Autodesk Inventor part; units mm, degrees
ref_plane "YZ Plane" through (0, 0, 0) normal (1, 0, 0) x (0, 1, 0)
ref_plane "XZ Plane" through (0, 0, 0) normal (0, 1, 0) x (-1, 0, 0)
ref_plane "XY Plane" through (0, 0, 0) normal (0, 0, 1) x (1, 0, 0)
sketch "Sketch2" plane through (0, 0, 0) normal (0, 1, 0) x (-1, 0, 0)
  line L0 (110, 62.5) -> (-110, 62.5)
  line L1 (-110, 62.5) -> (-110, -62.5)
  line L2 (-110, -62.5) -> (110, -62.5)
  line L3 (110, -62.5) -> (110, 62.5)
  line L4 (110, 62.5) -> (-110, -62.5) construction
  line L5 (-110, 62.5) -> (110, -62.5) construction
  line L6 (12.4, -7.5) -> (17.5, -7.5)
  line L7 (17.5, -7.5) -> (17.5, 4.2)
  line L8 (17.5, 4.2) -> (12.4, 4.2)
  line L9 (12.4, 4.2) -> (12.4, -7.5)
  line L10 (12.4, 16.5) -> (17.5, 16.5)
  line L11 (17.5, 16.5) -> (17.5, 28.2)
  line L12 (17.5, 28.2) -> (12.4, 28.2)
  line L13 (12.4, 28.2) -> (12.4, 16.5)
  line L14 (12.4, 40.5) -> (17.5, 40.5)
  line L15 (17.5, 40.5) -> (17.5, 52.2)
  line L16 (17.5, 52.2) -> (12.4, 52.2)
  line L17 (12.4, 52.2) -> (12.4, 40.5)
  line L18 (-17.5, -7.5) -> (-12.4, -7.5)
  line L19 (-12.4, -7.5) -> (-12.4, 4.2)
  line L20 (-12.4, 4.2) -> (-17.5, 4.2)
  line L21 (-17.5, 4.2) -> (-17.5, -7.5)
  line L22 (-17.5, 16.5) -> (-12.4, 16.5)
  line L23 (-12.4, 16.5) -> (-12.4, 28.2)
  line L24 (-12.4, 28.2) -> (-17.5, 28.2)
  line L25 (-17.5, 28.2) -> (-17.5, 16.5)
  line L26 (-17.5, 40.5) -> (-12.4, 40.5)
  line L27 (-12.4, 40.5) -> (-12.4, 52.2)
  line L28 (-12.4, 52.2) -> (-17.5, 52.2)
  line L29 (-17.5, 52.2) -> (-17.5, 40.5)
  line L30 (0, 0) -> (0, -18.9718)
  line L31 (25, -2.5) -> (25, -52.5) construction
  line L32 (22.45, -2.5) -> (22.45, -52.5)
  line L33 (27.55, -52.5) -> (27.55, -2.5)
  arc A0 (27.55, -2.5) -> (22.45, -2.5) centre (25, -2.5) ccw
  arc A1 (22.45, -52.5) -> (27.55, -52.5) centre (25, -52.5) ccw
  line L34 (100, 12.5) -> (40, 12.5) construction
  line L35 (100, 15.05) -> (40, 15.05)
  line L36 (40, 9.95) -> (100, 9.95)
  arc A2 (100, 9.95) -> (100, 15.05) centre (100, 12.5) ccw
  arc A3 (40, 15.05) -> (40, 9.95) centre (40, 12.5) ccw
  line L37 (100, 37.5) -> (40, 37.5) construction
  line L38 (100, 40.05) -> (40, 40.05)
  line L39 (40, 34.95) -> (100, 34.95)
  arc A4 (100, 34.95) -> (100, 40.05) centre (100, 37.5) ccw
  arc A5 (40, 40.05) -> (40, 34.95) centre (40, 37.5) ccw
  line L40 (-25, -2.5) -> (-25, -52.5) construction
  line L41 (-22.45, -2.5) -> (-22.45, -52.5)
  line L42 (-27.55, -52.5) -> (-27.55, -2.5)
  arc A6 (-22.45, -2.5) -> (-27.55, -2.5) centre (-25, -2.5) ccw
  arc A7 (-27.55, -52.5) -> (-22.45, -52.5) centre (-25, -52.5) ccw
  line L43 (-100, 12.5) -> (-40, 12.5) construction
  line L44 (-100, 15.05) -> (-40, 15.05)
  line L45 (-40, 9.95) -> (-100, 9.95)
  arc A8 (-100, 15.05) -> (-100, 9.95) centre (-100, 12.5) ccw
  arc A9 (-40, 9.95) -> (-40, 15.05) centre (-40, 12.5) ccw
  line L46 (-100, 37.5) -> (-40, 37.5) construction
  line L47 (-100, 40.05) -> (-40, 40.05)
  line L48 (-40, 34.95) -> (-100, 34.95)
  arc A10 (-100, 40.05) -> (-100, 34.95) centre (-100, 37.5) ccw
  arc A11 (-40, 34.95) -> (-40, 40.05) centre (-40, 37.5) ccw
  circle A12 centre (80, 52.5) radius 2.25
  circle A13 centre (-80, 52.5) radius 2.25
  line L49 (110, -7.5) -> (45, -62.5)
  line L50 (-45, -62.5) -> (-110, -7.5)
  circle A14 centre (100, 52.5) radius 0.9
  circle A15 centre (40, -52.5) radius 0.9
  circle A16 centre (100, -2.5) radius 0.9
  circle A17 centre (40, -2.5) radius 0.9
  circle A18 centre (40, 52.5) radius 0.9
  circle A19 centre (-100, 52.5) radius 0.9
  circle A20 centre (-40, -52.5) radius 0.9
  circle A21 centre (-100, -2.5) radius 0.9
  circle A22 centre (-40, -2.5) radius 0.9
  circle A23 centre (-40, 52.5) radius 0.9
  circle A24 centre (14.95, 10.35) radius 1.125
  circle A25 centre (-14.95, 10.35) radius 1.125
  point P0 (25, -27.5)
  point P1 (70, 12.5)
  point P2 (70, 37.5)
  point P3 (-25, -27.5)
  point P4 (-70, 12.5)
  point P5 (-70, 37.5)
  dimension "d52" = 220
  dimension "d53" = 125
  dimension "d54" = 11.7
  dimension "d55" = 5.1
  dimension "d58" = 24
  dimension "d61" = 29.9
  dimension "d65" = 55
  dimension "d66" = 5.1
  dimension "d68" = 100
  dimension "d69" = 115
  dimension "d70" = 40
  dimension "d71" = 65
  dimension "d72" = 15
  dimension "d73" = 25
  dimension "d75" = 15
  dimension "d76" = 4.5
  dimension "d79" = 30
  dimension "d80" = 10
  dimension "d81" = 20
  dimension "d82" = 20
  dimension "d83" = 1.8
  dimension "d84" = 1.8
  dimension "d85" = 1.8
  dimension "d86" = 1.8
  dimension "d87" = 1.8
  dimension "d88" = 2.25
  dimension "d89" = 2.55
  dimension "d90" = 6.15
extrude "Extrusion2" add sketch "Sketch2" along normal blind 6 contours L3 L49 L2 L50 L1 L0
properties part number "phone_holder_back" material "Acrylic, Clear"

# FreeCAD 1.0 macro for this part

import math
import FreeCAD as App
import Part
import Sketcher
Q = App.Units.Quantity

doc = App.newDocument("Part")
body = doc.addObject("PartDesign::Body", "Body")

sketch1 = body.newObject("Sketcher::SketchObject", "Sketch")
sketch1.AttachmentSupport = (doc.getObject("XZ_Plane"), [""])
sketch1.MapMode = "FlatFace"
sketch1.addGeometry([
    Part.LineSegment(App.Vector(-110, -7.5, 0), App.Vector(-110, 62.5, 0)),
    Part.LineSegment(App.Vector(-110, 62.5, 0), App.Vector(110, 62.5, 0)),
    Part.LineSegment(App.Vector(110, 62.5, 0), App.Vector(110, -7.5, 0)),
    Part.LineSegment(App.Vector(110, -7.5, 0), App.Vector(45, -62.5, 0)),
    Part.LineSegment(App.Vector(45, -62.5, 0), App.Vector(-45, -62.5, 0)),
    Part.LineSegment(App.Vector(-45, -62.5, 0), App.Vector(-110, -7.5, 0)),
    Part.Circle(App.Vector(40, -52.5, 0), App.Vector(0, 0, 1), 0.9),
    Part.Circle(App.Vector(100, -2.5, 0), App.Vector(0, 0, 1), 0.9),
    Part.ArcOfCircle(Part.Circle(App.Vector(25, -2.5, 0), App.Vector(0, 0, 1), 2.6), math.radians(0), math.radians(180)),
    Part.LineSegment(App.Vector(22.4, -2.5, 0), App.Vector(22.4, -52.5, 0)),
    Part.ArcOfCircle(Part.Circle(App.Vector(25, -52.5, 0), App.Vector(0, 0, 1), 2.6), math.radians(180), math.radians(360)),
    Part.LineSegment(App.Vector(27.6, -52.5, 0), App.Vector(27.6, -2.5, 0)),
    Part.Circle(App.Vector(40, -2.5, 0), App.Vector(0, 0, 1), 0.9),
    Part.LineSegment(App.Vector(12.4, -7.5, 0), App.Vector(17.5, -7.5, 0)),
    Part.LineSegment(App.Vector(17.5, -7.5, 0), App.Vector(17.5, 4.2, 0)),
    Part.LineSegment(App.Vector(17.5, 4.2, 0), App.Vector(12.4, 4.2, 0)),
    Part.LineSegment(App.Vector(12.4, 4.2, 0), App.Vector(12.4, -7.5, 0)),
    Part.Circle(App.Vector(-40, -52.5, 0), App.Vector(0, 0, 1), 0.9),
    Part.LineSegment(App.Vector(-22.4, -52.5, 0), App.Vector(-22.4, -2.5, 0)),
    Part.ArcOfCircle(Part.Circle(App.Vector(-25, -2.5, 0), App.Vector(0, 0, 1), 2.6), math.radians(0), math.radians(180)),
    Part.LineSegment(App.Vector(-27.6, -2.5, 0), App.Vector(-27.6, -52.5, 0)),
    Part.ArcOfCircle(Part.Circle(App.Vector(-25, -52.5, 0), App.Vector(0, 0, 1), 2.6), math.radians(180), math.radians(360)),
    Part.LineSegment(App.Vector(-17.5, -7.5, 0), App.Vector(-12.4, -7.5, 0)),
    Part.LineSegment(App.Vector(-12.4, -7.5, 0), App.Vector(-12.4, 4.2, 0)),
    Part.LineSegment(App.Vector(-12.4, 4.2, 0), App.Vector(-17.5, 4.2, 0)),
    Part.LineSegment(App.Vector(-17.5, 4.2, 0), App.Vector(-17.5, -7.5, 0)),
    Part.Circle(App.Vector(-40, -2.5, 0), App.Vector(0, 0, 1), 0.9),
    Part.Circle(App.Vector(-100, -2.5, 0), App.Vector(0, 0, 1), 0.9),
    Part.ArcOfCircle(Part.Circle(App.Vector(100, 12.5, 0), App.Vector(0, 0, 1), 2.6), math.radians(-90), math.radians(90)),
    Part.LineSegment(App.Vector(100, 15.1, 0), App.Vector(40, 15.1, 0)),
    Part.ArcOfCircle(Part.Circle(App.Vector(40, 12.5, 0), App.Vector(0, 0, 1), 2.6), math.radians(90), math.radians(270)),
    Part.LineSegment(App.Vector(40, 9.9, 0), App.Vector(100, 9.9, 0)),
    Part.Circle(App.Vector(14.9, 10.3, 0), App.Vector(0, 0, 1), 1.1),
    Part.LineSegment(App.Vector(12.4, 16.5, 0), App.Vector(17.5, 16.5, 0)),
    Part.LineSegment(App.Vector(17.5, 16.5, 0), App.Vector(17.5, 28.2, 0)),
    Part.LineSegment(App.Vector(17.5, 28.2, 0), App.Vector(12.4, 28.2, 0)),
    Part.LineSegment(App.Vector(12.4, 28.2, 0), App.Vector(12.4, 16.5, 0)),
    Part.ArcOfCircle(Part.Circle(App.Vector(100, 37.5, 0), App.Vector(0, 0, 1), 2.5), math.radians(-90), math.radians(90)),
    Part.LineSegment(App.Vector(100, 40, 0), App.Vector(40, 40, 0)),
    Part.ArcOfCircle(Part.Circle(App.Vector(40, 37.5, 0), App.Vector(0, 0, 1), 2.5), math.radians(90), math.radians(270)),
    Part.LineSegment(App.Vector(40, 35, 0), App.Vector(100, 35, 0)),
    Part.Circle(App.Vector(100, 52.5, 0), App.Vector(0, 0, 1), 0.9),
    Part.Circle(App.Vector(80, 52.5, 0), App.Vector(0, 0, 1), 2.2),
    Part.LineSegment(App.Vector(12.4, 40.5, 0), App.Vector(17.5, 40.5, 0)),
    Part.LineSegment(App.Vector(17.5, 40.5, 0), App.Vector(17.5, 52.2, 0)),
    Part.LineSegment(App.Vector(17.5, 52.2, 0), App.Vector(12.4, 52.2, 0)),
    Part.LineSegment(App.Vector(12.4, 52.2, 0), App.Vector(12.4, 40.5, 0)),
    Part.Circle(App.Vector(40, 52.5, 0), App.Vector(0, 0, 1), 0.9),
    Part.Circle(App.Vector(-14.9, 10.3, 0), App.Vector(0, 0, 1), 1.1),
    Part.LineSegment(App.Vector(-17.5, 16.5, 0), App.Vector(-12.4, 16.5, 0)),
    Part.LineSegment(App.Vector(-12.4, 16.5, 0), App.Vector(-12.4, 28.2, 0)),
    Part.LineSegment(App.Vector(-12.4, 28.2, 0), App.Vector(-17.5, 28.2, 0)),
    Part.LineSegment(App.Vector(-17.5, 28.2, 0), App.Vector(-17.5, 16.5, 0)),
    Part.LineSegment(App.Vector(-40, 15.1, 0), App.Vector(-100, 15.1, 0)),
    Part.ArcOfCircle(Part.Circle(App.Vector(-100, 12.5, 0), App.Vector(0, 0, 1), 2.6), math.radians(90), math.radians(270)),
    Part.LineSegment(App.Vector(-100, 9.9, 0), App.Vector(-40, 9.9, 0)),
    Part.ArcOfCircle(Part.Circle(App.Vector(-40, 12.5, 0), App.Vector(0, 0, 1), 2.6), math.radians(-90), math.radians(90)),
    Part.LineSegment(App.Vector(-17.5, 40.5, 0), App.Vector(-12.4, 40.5, 0)),
    Part.LineSegment(App.Vector(-12.4, 40.5, 0), App.Vector(-12.4, 52.2, 0)),
    Part.LineSegment(App.Vector(-12.4, 52.2, 0), App.Vector(-17.5, 52.2, 0)),
    Part.LineSegment(App.Vector(-17.5, 52.2, 0), App.Vector(-17.5, 40.5, 0)),
    Part.Circle(App.Vector(-40, 52.5, 0), App.Vector(0, 0, 1), 0.9),
    Part.LineSegment(App.Vector(-40, 40, 0), App.Vector(-100, 40, 0)),
    Part.ArcOfCircle(Part.Circle(App.Vector(-100, 37.5, 0), App.Vector(0, 0, 1), 2.5), math.radians(90), math.radians(270)),
    Part.LineSegment(App.Vector(-100, 35, 0), App.Vector(-40, 35, 0)),
    Part.ArcOfCircle(Part.Circle(App.Vector(-40, 37.5, 0), App.Vector(0, 0, 1), 2.5), math.radians(-90), math.radians(90)),
    Part.Circle(App.Vector(-80, 52.5, 0), App.Vector(0, 0, 1), 2.2),
    Part.Circle(App.Vector(-100, 52.5, 0), App.Vector(0, 0, 1), 0.9),
], False)
sketch1.addConstraint([
    Sketcher.Constraint("Coincident", 0, 2, 1, 1),
    Sketcher.Constraint("Coincident", 1, 2, 2, 1),
    Sketcher.Constraint("Coincident", 2, 2, 3, 1),
    Sketcher.Constraint("Coincident", 3, 2, 4, 1),
    Sketcher.Constraint("Coincident", 4, 2, 5, 1),
    Sketcher.Constraint("Coincident", 5, 2, 0, 1),
    Sketcher.Constraint("Tangent", 8, 2, 9, 1),
    Sketcher.Constraint("Tangent", 9, 2, 10, 1),
    Sketcher.Constraint("Tangent", 10, 2, 11, 1),
    Sketcher.Constraint("Tangent", 11, 2, 8, 1),
    Sketcher.Constraint("Coincident", 13, 2, 14, 1),
    Sketcher.Constraint("Coincident", 14, 2, 15, 1),
    Sketcher.Constraint("Coincident", 15, 2, 16, 1),
    Sketcher.Constraint("Coincident", 16, 2, 13, 1),
    Sketcher.Constraint("Tangent", 18, 2, 19, 1),
    Sketcher.Constraint("Tangent", 19, 2, 20, 1),
    Sketcher.Constraint("Tangent", 20, 2, 21, 1),
    Sketcher.Constraint("Tangent", 21, 2, 18, 1),
    Sketcher.Constraint("Coincident", 22, 2, 23, 1),
    Sketcher.Constraint("Coincident", 23, 2, 24, 1),
    Sketcher.Constraint("Coincident", 24, 2, 25, 1),
    Sketcher.Constraint("Coincident", 25, 2, 22, 1),
    Sketcher.Constraint("Tangent", 28, 2, 29, 1),
    Sketcher.Constraint("Tangent", 29, 2, 30, 1),
    Sketcher.Constraint("Tangent", 30, 2, 31, 1),
    Sketcher.Constraint("Tangent", 31, 2, 28, 1),
    Sketcher.Constraint("Coincident", 33, 2, 34, 1),
    Sketcher.Constraint("Coincident", 34, 2, 35, 1),
    Sketcher.Constraint("Coincident", 35, 2, 36, 1),
    Sketcher.Constraint("Coincident", 36, 2, 33, 1),
    Sketcher.Constraint("Tangent", 37, 2, 38, 1),
    Sketcher.Constraint("Tangent", 38, 2, 39, 1),
    Sketcher.Constraint("Tangent", 39, 2, 40, 1),
    Sketcher.Constraint("Tangent", 40, 2, 37, 1),
    Sketcher.Constraint("Coincident", 43, 2, 44, 1),
    Sketcher.Constraint("Coincident", 44, 2, 45, 1),
    Sketcher.Constraint("Coincident", 45, 2, 46, 1),
    Sketcher.Constraint("Coincident", 46, 2, 43, 1),
    Sketcher.Constraint("Coincident", 49, 2, 50, 1),
    Sketcher.Constraint("Coincident", 50, 2, 51, 1),
    Sketcher.Constraint("Coincident", 51, 2, 52, 1),
    Sketcher.Constraint("Coincident", 52, 2, 49, 1),
    Sketcher.Constraint("Tangent", 53, 2, 54, 1),
    Sketcher.Constraint("Tangent", 54, 2, 55, 1),
    Sketcher.Constraint("Tangent", 55, 2, 56, 1),
    Sketcher.Constraint("Tangent", 56, 2, 53, 1),
    Sketcher.Constraint("Coincident", 57, 2, 58, 1),
    Sketcher.Constraint("Coincident", 58, 2, 59, 1),
    Sketcher.Constraint("Coincident", 59, 2, 60, 1),
    Sketcher.Constraint("Coincident", 60, 2, 57, 1),
    Sketcher.Constraint("Tangent", 62, 2, 63, 1),
    Sketcher.Constraint("Tangent", 63, 2, 64, 1),
    Sketcher.Constraint("Tangent", 64, 2, 65, 1),
    Sketcher.Constraint("Tangent", 65, 2, 62, 1),
    Sketcher.Constraint("Vertical", 0),
    Sketcher.Constraint("Horizontal", 1),
    Sketcher.Constraint("Vertical", 2),
    Sketcher.Constraint("Horizontal", 4),
    Sketcher.Constraint("Vertical", 9),
    Sketcher.Constraint("Vertical", 11),
    Sketcher.Constraint("Horizontal", 13),
    Sketcher.Constraint("Vertical", 14),
    Sketcher.Constraint("Horizontal", 15),
    Sketcher.Constraint("Vertical", 16),
    Sketcher.Constraint("Vertical", 18),
    Sketcher.Constraint("Vertical", 20),
    Sketcher.Constraint("Horizontal", 22),
    Sketcher.Constraint("Vertical", 23),
    Sketcher.Constraint("Horizontal", 24),
    Sketcher.Constraint("Vertical", 25),
    Sketcher.Constraint("Horizontal", 29),
    Sketcher.Constraint("Horizontal", 31),
    Sketcher.Constraint("Horizontal", 33),
    Sketcher.Constraint("Vertical", 34),
    Sketcher.Constraint("Horizontal", 35),
    Sketcher.Constraint("Vertical", 36),
    Sketcher.Constraint("Horizontal", 38),
    Sketcher.Constraint("Horizontal", 40),
    Sketcher.Constraint("Horizontal", 43),
    Sketcher.Constraint("Vertical", 44),
    Sketcher.Constraint("Horizontal", 45),
    Sketcher.Constraint("Vertical", 46),
    Sketcher.Constraint("Horizontal", 49),
    Sketcher.Constraint("Vertical", 50),
    Sketcher.Constraint("Horizontal", 51),
    Sketcher.Constraint("Vertical", 52),
    Sketcher.Constraint("Horizontal", 53),
    Sketcher.Constraint("Horizontal", 55),
    Sketcher.Constraint("Horizontal", 57),
    Sketcher.Constraint("Vertical", 58),
    Sketcher.Constraint("Horizontal", 59),
    Sketcher.Constraint("Vertical", 60),
    Sketcher.Constraint("Horizontal", 62),
    Sketcher.Constraint("Horizontal", 64),
    Sketcher.Constraint("Equal", 6, 7),
    Sketcher.Constraint("Equal", 7, 12),
    Sketcher.Constraint("Equal", 12, 17),
    Sketcher.Constraint("Equal", 10, 19),
    Sketcher.Constraint("Equal", 17, 26),
    Sketcher.Constraint("Equal", 26, 27),
    Sketcher.Constraint("Equal", 21, 28),
    Sketcher.Constraint("Equal", 30, 37),
    Sketcher.Constraint("Equal", 27, 41),
    Sketcher.Constraint("Equal", 41, 47),
    Sketcher.Constraint("Equal", 32, 48),
    Sketcher.Constraint("Equal", 39, 54),
    Sketcher.Constraint("Equal", 47, 61),
    Sketcher.Constraint("Equal", 56, 63),
    Sketcher.Constraint("Equal", 42, 66),
    Sketcher.Constraint("Equal", 61, 67),
    Sketcher.Constraint("Symmetric", 17, 3, 47, 3, -1, 1),
    Sketcher.Constraint("Symmetric", 6, 3, 61, 3, -1, 1),
    Sketcher.Constraint("Symmetric", 6, 3, 17, 3, -2),
    Sketcher.Constraint("Symmetric", 8, 3, 19, 3, -2),
    Sketcher.Constraint("Symmetric", 12, 3, 26, 3, -2),
    Sketcher.Constraint("Symmetric", 7, 3, 27, 3, -2),
    Sketcher.Constraint("Symmetric", 32, 3, 48, 3, -2),
    Sketcher.Constraint("Symmetric", 28, 3, 54, 3, -2),
    Sketcher.Constraint("Symmetric", 37, 3, 63, 3, -2),
    Sketcher.Constraint("Symmetric", 42, 3, 66, 3, -2),
    Sketcher.Constraint("Symmetric", 41, 3, 67, 3, -2),
    Sketcher.Constraint("Symmetric", 2, 2, 5, 2, -2),
    Sketcher.Constraint("Symmetric", 16, 2, 22, 2, -2),
    Sketcher.Constraint("Symmetric", 14, 2, 24, 2, -2),
    Sketcher.Constraint("Symmetric", 36, 2, 49, 2, -2),
    Sketcher.Constraint("Symmetric", 34, 2, 51, 2, -2),
    Sketcher.Constraint("Symmetric", 46, 2, 57, 2, -2),
    Sketcher.Constraint("Symmetric", 44, 2, 59, 2, -2),
    Sketcher.Constraint("Horizontal", 7, 3, 8, 3),
    Sketcher.Constraint("Horizontal", 6, 3, 10, 3),
    Sketcher.Constraint("Horizontal", 8, 3, 12, 3),
    Sketcher.Constraint("Horizontal", 17, 3, 21, 3),
    Sketcher.Constraint("Horizontal", 41, 3, 42, 3),
    Sketcher.Constraint("Horizontal", 42, 3, 47, 3),
    Sketcher.Constraint("Horizontal", 5, 2, 13, 2),
    Sketcher.Constraint("Vertical", 6, 3, 12, 3),
    Sketcher.Constraint("Vertical", 7, 3, 28, 3),
    Sketcher.Constraint("Vertical", 12, 3, 30, 3),
    Sketcher.Constraint("Vertical", 28, 3, 37, 3),
    Sketcher.Constraint("Vertical", 30, 3, 39, 3),
    Sketcher.Constraint("Vertical", 37, 3, 41, 3),
    Sketcher.Constraint("Vertical", 26, 3, 56, 3),
    Sketcher.Constraint("Vertical", 61, 3, 65, 3),
    Sketcher.Constraint("Vertical", 14, 2, 33, 2),
    Sketcher.Constraint("Vertical", 16, 2, 35, 2),
    Sketcher.Constraint("Vertical", 34, 2, 43, 2),
    Sketcher.Constraint("Vertical", 36, 2, 45, 2),
    Sketcher.Constraint("Equal", 25, 34),
    Sketcher.Constraint("Equal", 36, 44),
    Sketcher.Constraint("Equal", 3, 5),
    Sketcher.Constraint("Diameter", 6, Q("1.8 mm")),
    Sketcher.Constraint("Diameter", 42, Q("4.5 mm")),
    Sketcher.Constraint("Diameter", 32, Q("2.25 mm")),
    Sketcher.Constraint("DistanceX", 1, 1, 1, 2, Q("220 mm")),
    Sketcher.Constraint("Radius", 8, Q("2.55 mm")),
    Sketcher.Constraint("DistanceX", 13, 1, 13, 2, Q("5.1 mm")),
    Sketcher.Constraint("DistanceY", 14, 1, 14, 2, Q("11.7 mm")),
    Sketcher.Constraint("DistanceX", -1, 1, 6, 3, Q("40 mm")),
    Sketcher.Constraint("DistanceX", -1, 1, 7, 3, Q("100 mm")),
    Sketcher.Constraint("DistanceX", -1, 1, 8, 3, Q("25 mm")),
    Sketcher.Constraint("DistanceX", 4, 2, 4, 1, Q("90 mm")),
    Sketcher.Constraint("DistanceY", 0, 1, 0, 2, Q("70 mm")),
    Sketcher.Constraint("DistanceY", 9, 2, 9, 1, Q("50 mm")),
    Sketcher.Constraint("DistanceX", -1, 1, 42, 3, Q("80 mm")),
    Sketcher.Constraint("DistanceY", 6, 3, -1, 1, Q("52.5 mm")),
    Sketcher.Constraint("DistanceY", -1, 1, 28, 3, Q("12.5 mm")),
    Sketcher.Constraint("DistanceY", -1, 1, 37, 3, Q("37.5 mm")),
    Sketcher.Constraint("DistanceY", -1, 1, 0, 2, Q("62.5 mm")),
    Sketcher.Constraint("DistanceY", 3, 2, -1, 1, Q("62.5 mm")),
    Sketcher.Constraint("DistanceX", -1, 1, 13, 2, Q("17.5 mm")),
    Sketcher.Constraint("DistanceY", -1, 1, 33, 2, Q("16.5 mm")),
    Sketcher.Constraint("DistanceY", -1, 1, 43, 2, Q("40.5 mm")),
    Sketcher.Constraint("DistanceX", -1, 1, 32, 3, Q("14.95 mm")),
    Sketcher.Constraint("DistanceY", -1, 1, 32, 3, Q("10.35 mm")),
])
pad1 = body.newObject("PartDesign::Pad", "Pad")
pad1.Profile = sketch1
pad1.Length = 6
pad1.Reversed = True

doc.recompute()
